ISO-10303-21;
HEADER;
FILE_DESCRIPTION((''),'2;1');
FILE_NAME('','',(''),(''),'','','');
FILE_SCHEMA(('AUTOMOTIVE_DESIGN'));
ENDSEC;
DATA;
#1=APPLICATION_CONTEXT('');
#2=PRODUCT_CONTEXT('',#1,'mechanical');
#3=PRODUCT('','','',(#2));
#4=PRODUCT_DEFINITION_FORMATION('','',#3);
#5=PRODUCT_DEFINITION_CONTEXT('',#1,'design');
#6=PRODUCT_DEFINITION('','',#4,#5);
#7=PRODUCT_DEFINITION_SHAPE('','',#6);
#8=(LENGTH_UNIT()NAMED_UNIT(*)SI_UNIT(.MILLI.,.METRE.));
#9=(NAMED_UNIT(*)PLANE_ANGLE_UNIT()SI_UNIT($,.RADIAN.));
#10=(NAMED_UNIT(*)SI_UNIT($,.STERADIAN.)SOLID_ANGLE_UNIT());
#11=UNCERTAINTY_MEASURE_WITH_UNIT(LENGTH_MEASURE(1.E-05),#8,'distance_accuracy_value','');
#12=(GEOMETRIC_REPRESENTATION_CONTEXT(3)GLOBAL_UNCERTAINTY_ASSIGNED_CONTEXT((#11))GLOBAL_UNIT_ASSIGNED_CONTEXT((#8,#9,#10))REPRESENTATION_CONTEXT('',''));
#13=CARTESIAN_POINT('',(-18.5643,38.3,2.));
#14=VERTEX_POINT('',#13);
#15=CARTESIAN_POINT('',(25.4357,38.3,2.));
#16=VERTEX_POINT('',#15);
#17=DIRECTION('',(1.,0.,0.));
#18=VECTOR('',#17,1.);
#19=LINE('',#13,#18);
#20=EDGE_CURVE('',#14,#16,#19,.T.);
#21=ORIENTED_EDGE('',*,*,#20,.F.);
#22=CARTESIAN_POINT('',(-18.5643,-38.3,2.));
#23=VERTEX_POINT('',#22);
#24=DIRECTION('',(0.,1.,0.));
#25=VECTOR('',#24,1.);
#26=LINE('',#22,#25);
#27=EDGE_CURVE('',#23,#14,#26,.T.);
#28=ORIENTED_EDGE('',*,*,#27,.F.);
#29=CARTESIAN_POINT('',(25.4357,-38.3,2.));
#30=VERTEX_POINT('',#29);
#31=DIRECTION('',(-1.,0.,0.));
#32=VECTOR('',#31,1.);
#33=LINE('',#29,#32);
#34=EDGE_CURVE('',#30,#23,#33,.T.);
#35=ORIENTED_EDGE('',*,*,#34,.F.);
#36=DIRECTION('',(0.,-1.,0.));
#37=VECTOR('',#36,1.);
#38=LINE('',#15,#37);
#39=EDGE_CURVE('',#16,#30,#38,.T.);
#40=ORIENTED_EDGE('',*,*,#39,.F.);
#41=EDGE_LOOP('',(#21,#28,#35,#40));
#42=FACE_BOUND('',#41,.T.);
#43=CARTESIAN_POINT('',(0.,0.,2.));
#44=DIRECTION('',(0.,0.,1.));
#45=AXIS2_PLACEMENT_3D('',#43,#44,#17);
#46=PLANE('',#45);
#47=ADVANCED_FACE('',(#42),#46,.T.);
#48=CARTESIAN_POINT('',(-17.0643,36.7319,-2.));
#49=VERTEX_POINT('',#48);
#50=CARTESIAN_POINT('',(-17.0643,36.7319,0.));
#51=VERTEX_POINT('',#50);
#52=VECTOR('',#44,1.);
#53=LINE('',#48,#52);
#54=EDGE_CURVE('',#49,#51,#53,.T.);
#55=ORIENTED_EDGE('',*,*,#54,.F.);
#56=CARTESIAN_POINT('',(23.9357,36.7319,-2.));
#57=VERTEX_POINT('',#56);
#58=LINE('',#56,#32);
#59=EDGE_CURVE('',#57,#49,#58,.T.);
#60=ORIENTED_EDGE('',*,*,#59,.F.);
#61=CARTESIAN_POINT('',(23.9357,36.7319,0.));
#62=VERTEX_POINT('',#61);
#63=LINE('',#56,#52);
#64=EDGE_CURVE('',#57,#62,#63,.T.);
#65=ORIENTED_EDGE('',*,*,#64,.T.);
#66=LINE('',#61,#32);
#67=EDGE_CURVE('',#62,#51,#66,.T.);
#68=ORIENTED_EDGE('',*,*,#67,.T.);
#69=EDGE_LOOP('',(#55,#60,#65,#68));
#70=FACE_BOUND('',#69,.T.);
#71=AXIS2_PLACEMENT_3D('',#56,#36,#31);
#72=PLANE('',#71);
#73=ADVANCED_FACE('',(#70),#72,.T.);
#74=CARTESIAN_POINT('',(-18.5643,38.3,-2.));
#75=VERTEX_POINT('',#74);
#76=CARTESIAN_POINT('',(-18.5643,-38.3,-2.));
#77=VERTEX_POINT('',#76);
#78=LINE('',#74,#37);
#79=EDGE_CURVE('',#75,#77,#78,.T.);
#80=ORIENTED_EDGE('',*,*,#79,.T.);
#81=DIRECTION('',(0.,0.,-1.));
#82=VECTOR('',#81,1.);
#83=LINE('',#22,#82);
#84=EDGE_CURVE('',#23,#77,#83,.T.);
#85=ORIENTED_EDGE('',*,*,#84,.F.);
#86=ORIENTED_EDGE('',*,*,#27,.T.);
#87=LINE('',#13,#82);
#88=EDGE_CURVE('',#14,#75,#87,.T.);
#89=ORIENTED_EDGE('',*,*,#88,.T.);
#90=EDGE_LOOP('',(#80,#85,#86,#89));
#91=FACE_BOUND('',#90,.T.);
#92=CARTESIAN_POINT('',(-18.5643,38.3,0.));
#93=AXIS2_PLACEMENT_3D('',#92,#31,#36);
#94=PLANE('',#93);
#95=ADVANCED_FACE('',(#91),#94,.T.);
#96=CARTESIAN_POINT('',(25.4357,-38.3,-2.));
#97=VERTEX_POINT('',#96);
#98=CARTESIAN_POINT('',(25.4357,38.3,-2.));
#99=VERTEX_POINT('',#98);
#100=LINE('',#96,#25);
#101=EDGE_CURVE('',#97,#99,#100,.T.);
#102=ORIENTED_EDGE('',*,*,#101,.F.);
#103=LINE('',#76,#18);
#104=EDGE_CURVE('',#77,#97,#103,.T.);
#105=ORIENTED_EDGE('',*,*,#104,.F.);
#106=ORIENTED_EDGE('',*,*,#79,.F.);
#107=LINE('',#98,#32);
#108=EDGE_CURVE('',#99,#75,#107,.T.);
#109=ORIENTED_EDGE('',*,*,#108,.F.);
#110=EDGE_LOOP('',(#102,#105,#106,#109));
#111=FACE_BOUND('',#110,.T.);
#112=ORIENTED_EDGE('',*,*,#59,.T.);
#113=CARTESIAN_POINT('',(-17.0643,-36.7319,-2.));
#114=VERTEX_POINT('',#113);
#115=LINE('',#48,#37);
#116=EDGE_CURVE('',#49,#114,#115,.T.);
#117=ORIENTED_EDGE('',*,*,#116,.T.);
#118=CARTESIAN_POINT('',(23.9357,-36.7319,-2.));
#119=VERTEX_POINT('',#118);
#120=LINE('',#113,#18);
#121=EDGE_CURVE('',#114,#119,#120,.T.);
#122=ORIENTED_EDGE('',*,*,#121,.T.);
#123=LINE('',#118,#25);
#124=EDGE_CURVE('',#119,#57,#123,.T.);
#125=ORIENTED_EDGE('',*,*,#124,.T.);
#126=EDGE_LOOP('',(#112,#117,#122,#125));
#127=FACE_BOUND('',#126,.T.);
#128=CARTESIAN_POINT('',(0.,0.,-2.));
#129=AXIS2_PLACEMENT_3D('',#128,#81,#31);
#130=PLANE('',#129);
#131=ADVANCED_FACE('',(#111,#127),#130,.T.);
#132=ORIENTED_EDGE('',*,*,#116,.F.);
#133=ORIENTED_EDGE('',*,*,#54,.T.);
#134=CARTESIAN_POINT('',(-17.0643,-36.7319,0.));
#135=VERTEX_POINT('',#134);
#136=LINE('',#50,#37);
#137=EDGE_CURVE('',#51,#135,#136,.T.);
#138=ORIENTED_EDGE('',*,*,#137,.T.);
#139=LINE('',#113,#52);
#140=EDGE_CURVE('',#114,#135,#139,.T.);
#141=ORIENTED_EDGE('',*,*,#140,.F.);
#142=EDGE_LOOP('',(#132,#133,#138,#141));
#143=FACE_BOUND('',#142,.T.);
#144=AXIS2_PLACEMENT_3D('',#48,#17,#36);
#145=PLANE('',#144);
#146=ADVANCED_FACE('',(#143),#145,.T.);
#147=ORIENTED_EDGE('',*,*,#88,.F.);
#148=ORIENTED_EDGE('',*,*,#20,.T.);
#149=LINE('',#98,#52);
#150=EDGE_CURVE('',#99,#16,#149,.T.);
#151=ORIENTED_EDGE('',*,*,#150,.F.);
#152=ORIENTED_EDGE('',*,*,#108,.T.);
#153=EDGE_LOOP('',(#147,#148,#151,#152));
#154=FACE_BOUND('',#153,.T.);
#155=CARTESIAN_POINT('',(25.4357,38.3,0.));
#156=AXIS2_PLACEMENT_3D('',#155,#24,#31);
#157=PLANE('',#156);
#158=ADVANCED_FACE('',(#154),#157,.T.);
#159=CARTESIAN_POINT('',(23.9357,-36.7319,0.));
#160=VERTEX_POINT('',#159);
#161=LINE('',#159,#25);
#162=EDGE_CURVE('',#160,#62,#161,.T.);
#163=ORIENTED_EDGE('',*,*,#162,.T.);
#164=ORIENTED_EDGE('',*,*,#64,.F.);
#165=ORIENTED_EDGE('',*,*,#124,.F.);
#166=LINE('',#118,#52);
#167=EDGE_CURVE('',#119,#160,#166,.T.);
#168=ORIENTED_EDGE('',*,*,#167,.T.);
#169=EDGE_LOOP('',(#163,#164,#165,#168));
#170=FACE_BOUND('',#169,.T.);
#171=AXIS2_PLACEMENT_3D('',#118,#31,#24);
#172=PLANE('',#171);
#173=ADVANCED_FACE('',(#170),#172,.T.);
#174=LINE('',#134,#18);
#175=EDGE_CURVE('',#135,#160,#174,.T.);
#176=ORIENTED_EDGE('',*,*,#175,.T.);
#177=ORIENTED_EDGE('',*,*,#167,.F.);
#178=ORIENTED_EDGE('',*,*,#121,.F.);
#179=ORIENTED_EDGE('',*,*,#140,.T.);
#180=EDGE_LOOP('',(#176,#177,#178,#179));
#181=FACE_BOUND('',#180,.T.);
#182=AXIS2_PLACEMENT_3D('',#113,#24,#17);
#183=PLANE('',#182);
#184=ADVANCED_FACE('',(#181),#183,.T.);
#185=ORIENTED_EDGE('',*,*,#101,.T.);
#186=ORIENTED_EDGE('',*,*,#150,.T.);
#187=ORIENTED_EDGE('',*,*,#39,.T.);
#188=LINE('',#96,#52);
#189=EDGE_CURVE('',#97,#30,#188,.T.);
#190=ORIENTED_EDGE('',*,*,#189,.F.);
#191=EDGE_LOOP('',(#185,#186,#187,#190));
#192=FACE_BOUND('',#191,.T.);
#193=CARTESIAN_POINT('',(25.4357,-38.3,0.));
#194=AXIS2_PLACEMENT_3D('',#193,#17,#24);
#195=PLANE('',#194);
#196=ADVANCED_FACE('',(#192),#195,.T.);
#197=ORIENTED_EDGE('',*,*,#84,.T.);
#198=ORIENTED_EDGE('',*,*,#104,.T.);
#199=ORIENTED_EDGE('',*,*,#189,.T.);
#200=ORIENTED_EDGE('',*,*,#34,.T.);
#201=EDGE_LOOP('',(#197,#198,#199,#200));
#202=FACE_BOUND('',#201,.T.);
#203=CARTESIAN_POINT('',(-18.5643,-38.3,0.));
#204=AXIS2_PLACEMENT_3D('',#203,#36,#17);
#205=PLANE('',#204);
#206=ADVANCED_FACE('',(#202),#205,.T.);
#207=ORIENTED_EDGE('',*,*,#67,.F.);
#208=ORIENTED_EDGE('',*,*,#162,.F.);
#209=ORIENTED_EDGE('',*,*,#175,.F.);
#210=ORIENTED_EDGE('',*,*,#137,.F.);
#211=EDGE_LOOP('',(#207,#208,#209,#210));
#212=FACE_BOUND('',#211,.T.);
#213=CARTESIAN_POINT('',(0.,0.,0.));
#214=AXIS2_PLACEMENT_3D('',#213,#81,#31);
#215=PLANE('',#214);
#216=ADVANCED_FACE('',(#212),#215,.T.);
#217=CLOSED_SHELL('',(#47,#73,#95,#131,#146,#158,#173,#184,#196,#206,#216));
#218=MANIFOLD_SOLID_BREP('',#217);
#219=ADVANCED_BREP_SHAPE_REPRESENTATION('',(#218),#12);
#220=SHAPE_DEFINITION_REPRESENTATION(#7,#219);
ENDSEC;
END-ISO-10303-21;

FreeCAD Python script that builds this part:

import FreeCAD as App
import Part
import Sketcher
from FreeCAD import Vector
Q = App.Units.Quantity


def add_polygon(sketch, points):
    """Adds a closed chain of lines whose ends are joined by coincident constraints."""
    first, n = sketch.GeometryCount, len(points)
    for a, b in zip(points, points[1:] + points[:1]):
        sketch.addGeometry(Part.LineSegment(App.Vector(*a, 0), App.Vector(*b, 0)), False)
    for i in range(n):
        sketch.addConstraint(Sketcher.Constraint("Coincident", first + i, 2, first + (i + 1) % n, 1))

doc = App.newDocument("Part")
body = doc.addObject("PartDesign::Body", "Body")

sketch1 = body.newObject("Sketcher::SketchObject", "Sketch")
sketch1.AttachmentSupport = (doc.getObject("XY_Plane"), [""])
sketch1.MapMode = "FlatFace"
add_polygon(sketch1, [(25.4357, 38.3), (-18.5643, 38.3), (-18.5643, -38.3), (25.4357, -38.3)])
sketch1.addConstraint([
    Sketcher.Constraint("Horizontal", 0),
    Sketcher.Constraint("Vertical", 1),
    Sketcher.Constraint("Horizontal", 2),
    Sketcher.Constraint("Vertical", 3),
    Sketcher.Constraint("DistanceX", 0, 2, 0, 1, Q("44 mm")),
    Sketcher.Constraint("DistanceY", 1, 2, 1, 1, Q("76.6 mm")),
    Sketcher.Constraint("DistanceY", -1, 1, 0, 2, Q("38.3 mm")),
    Sketcher.Constraint("DistanceX", 0, 2, -1, 1, Q("18.5643 mm")),
])
pad1 = body.newObject("PartDesign::Pad", "Pad")
pad1.Profile = sketch1
pad1.Length = 2

sketch2 = body.newObject("Sketcher::SketchObject", "Sketch001")
sketch2.AttachmentSupport = (doc.getObject("XY_Plane"), [""])
sketch2.MapMode = "FlatFace"
add_polygon(sketch2, [(25.4357, -38.3), (-18.5643, -38.3), (-18.5643, 38.3), (25.4357, 38.3)])
add_polygon(sketch2, [(-16.5643, -36.3), (23.4357, -36.3), (23.4357, 36.3), (-16.5643, 36.3)])
sketch2.addConstraint([
    Sketcher.Constraint("Horizontal", 0),
    Sketcher.Constraint("Vertical", 1),
    Sketcher.Constraint("Horizontal", 2),
    Sketcher.Constraint("Vertical", 3),
    Sketcher.Constraint("Horizontal", 4),
    Sketcher.Constraint("Vertical", 5),
    Sketcher.Constraint("Horizontal", 6),
    Sketcher.Constraint("Vertical", 7),
    Sketcher.Constraint("DistanceX", 0, 2, 0, 1, Q("44 mm")),
    Sketcher.Constraint("DistanceX", 4, 1, 4, 2, Q("40 mm")),
    Sketcher.Constraint("DistanceY", 1, 1, 1, 2, Q("76.6 mm")),
    Sketcher.Constraint("DistanceY", 5, 1, 5, 2, Q("72.6 mm")),
    Sketcher.Constraint("DistanceX", 4, 2, 3, 2, Q("2 mm")),
    Sketcher.Constraint("DistanceY", 3, 2, 4, 2, Q("2 mm")),
    Sketcher.Constraint("DistanceY", 0, 2, -1, 1, Q("38.3 mm")),
    Sketcher.Constraint("DistanceX", 0, 2, -1, 1, Q("18.5643 mm")),
])
pad2 = body.newObject("PartDesign::Pad", "Pad001")
pad2.Profile = sketch2
pad2.Length = 2
pad2.Reversed = True

sketch3 = body.newObject("Sketcher::SketchObject", "Sketch002")
sketch3.AttachmentSupport = (doc.getObject("XY_Plane"), [""])
sketch3.MapMode = "FlatFace"
sketch3.AttachmentOffset = App.Placement(Vector(0, 0, -2), App.Rotation())
add_polygon(sketch3, [(-17.0643, 36.7319), (23.9357, 36.7319), (23.9357, -36.7319), (-17.0643, -36.7319)])
sketch3.addConstraint([
    Sketcher.Constraint("Horizontal", 0),
    Sketcher.Constraint("Vertical", 1),
    Sketcher.Constraint("Horizontal", 2),
    Sketcher.Constraint("Vertical", 3),
    Sketcher.Constraint("DistanceX", 0, 1, 0, 2, Q("41 mm")),
    Sketcher.Constraint("DistanceY", 1, 2, 1, 1, Q("73.4638 mm")),
    Sketcher.Constraint("DistanceY", -1, 1, 0, 2, Q("36.732 mm")),
    Sketcher.Constraint("DistanceX", -1, 1, 0, 2, Q("23.9357 mm")),
])
pocket1 = body.newObject("PartDesign::Pocket", "Pocket")
pocket1.Profile = sketch3
pocket1.Length = 2
pocket1.Reversed = True

doc.recompute()
